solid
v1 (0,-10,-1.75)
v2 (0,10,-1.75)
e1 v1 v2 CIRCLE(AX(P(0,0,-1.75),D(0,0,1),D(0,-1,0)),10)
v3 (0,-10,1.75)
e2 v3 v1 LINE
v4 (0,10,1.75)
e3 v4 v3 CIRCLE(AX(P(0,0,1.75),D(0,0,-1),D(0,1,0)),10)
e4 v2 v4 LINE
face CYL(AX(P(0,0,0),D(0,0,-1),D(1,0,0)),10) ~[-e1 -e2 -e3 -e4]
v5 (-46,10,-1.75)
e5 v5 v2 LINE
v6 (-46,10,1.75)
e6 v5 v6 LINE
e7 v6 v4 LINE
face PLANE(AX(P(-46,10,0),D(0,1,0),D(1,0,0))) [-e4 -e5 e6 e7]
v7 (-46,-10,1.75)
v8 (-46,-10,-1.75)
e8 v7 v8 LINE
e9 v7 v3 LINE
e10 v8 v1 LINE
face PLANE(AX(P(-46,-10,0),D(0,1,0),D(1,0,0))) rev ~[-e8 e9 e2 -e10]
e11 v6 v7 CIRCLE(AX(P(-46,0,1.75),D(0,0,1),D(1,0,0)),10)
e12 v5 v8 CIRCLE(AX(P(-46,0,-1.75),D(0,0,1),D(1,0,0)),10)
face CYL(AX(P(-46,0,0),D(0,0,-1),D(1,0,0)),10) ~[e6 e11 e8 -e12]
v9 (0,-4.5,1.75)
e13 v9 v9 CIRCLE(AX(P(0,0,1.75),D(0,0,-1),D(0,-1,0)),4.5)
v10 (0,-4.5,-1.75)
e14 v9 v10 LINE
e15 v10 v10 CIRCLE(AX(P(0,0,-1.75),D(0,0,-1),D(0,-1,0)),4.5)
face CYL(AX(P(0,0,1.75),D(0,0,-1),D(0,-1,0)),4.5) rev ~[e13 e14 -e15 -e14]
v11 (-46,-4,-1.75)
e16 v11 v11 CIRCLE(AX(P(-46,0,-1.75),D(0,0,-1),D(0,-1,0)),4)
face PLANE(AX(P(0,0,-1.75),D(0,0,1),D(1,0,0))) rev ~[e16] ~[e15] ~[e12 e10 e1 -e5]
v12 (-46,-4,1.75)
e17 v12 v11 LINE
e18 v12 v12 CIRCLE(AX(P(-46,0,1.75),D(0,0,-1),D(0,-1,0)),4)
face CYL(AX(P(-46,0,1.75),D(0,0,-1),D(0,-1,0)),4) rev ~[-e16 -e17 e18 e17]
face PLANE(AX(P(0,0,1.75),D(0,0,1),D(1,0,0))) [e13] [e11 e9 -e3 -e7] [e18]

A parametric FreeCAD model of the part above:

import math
import FreeCAD as App
import Part
import Sketcher
from FreeCAD import Vector
Q = App.Units.Quantity

doc = App.newDocument("Part")
body = doc.addObject("PartDesign::Body", "Body")

# Sketch on XY plane
sketch1 = body.newObject("Sketcher::SketchObject", "Sketch")
sketch1.AttachmentSupport = (doc.getObject("XY_Plane"), [""])
sketch1.MapMode = "FlatFace"
sketch1.addGeometry([
    Part.ArcOfCircle(Part.Circle(Vector(0, 0, 0), Vector(0, 0, 1), 10), math.radians(-90), math.radians(90)),
    Part.LineSegment(Vector(0, 10, 0), Vector(-46, 10, 0)),
    Part.ArcOfCircle(Part.Circle(Vector(-46, 0, 0), Vector(0, 0, 1), 10), math.radians(90), math.radians(270)),
    Part.LineSegment(Vector(-46, -10, 0), Vector(0, -10, 0)),
], False)
sketch1.addConstraint([
    Sketcher.Constraint("Tangent", 0, 2, 1, 1),
    Sketcher.Constraint("Tangent", 1, 2, 2, 1),
    Sketcher.Constraint("Tangent", 2, 2, 3, 1),
    Sketcher.Constraint("Tangent", 3, 2, 0, 1),
    Sketcher.Constraint("Horizontal", 1),
    Sketcher.Constraint("Horizontal", 3),
    Sketcher.Constraint("Coincident", 0, 3, -1, 1),
    Sketcher.Constraint("Radius", 0, Q("10 mm")),
    Sketcher.Constraint("DistanceX", 1, 2, 1, 1, Q("46 mm")),
])
pad1 = body.newObject("PartDesign::Pad", "Pad")
pad1.Profile = sketch1
pad1.Length = 3.5
pad1.Midplane = True

# Sketch on XY plane
sketch2 = body.newObject("Sketcher::SketchObject", "Sketch001")
sketch2.AttachmentSupport = (doc.getObject("XY_Plane"), [""])
sketch2.MapMode = "FlatFace"
sketch2.AttachmentOffset = App.Placement(Vector(0, 0, 1.75), App.Rotation())
sketch2.addGeometry(Part.Circle(Vector(-46, 0, 0), Vector(0, 0, 1), 4), False)
sketch2.addConstraint([
    Sketcher.Constraint("PointOnObject", 0, 3, -1),
    Sketcher.Constraint("Diameter", 0, Q("8 mm")),
    Sketcher.Constraint("DistanceX", 0, 3, -1, 1, Q("46 mm")),
])
doc.recompute()
hole = body.newObject("PartDesign::Hole", "Hole")
hole.Profile = sketch2
hole.ThreadType = "None"
hole.Diameter = 8
hole.DepthType = "ThroughAll"

# Sketch on XY plane
sketch3 = body.newObject("Sketcher::SketchObject", "Sketch002")
sketch3.AttachmentSupport = (doc.getObject("XY_Plane"), [""])
sketch3.MapMode = "FlatFace"
sketch3.AttachmentOffset = App.Placement(Vector(0, 0, 1.75), App.Rotation())
sketch3.addGeometry(Part.Circle(Vector(0, 0, 0), Vector(0, 0, 1), 4.5), False)
sketch3.addConstraint([
    Sketcher.Constraint("Coincident", 0, 3, -1, 1),
    Sketcher.Constraint("Diameter", 0, Q("9 mm")),
])
doc.recompute()
hole2 = body.newObject("PartDesign::Hole", "Hole001")
hole2.Profile = sketch3
hole2.ThreadType = "None"
hole2.Diameter = 9
hole2.DepthType = "ThroughAll"

doc.recompute()
